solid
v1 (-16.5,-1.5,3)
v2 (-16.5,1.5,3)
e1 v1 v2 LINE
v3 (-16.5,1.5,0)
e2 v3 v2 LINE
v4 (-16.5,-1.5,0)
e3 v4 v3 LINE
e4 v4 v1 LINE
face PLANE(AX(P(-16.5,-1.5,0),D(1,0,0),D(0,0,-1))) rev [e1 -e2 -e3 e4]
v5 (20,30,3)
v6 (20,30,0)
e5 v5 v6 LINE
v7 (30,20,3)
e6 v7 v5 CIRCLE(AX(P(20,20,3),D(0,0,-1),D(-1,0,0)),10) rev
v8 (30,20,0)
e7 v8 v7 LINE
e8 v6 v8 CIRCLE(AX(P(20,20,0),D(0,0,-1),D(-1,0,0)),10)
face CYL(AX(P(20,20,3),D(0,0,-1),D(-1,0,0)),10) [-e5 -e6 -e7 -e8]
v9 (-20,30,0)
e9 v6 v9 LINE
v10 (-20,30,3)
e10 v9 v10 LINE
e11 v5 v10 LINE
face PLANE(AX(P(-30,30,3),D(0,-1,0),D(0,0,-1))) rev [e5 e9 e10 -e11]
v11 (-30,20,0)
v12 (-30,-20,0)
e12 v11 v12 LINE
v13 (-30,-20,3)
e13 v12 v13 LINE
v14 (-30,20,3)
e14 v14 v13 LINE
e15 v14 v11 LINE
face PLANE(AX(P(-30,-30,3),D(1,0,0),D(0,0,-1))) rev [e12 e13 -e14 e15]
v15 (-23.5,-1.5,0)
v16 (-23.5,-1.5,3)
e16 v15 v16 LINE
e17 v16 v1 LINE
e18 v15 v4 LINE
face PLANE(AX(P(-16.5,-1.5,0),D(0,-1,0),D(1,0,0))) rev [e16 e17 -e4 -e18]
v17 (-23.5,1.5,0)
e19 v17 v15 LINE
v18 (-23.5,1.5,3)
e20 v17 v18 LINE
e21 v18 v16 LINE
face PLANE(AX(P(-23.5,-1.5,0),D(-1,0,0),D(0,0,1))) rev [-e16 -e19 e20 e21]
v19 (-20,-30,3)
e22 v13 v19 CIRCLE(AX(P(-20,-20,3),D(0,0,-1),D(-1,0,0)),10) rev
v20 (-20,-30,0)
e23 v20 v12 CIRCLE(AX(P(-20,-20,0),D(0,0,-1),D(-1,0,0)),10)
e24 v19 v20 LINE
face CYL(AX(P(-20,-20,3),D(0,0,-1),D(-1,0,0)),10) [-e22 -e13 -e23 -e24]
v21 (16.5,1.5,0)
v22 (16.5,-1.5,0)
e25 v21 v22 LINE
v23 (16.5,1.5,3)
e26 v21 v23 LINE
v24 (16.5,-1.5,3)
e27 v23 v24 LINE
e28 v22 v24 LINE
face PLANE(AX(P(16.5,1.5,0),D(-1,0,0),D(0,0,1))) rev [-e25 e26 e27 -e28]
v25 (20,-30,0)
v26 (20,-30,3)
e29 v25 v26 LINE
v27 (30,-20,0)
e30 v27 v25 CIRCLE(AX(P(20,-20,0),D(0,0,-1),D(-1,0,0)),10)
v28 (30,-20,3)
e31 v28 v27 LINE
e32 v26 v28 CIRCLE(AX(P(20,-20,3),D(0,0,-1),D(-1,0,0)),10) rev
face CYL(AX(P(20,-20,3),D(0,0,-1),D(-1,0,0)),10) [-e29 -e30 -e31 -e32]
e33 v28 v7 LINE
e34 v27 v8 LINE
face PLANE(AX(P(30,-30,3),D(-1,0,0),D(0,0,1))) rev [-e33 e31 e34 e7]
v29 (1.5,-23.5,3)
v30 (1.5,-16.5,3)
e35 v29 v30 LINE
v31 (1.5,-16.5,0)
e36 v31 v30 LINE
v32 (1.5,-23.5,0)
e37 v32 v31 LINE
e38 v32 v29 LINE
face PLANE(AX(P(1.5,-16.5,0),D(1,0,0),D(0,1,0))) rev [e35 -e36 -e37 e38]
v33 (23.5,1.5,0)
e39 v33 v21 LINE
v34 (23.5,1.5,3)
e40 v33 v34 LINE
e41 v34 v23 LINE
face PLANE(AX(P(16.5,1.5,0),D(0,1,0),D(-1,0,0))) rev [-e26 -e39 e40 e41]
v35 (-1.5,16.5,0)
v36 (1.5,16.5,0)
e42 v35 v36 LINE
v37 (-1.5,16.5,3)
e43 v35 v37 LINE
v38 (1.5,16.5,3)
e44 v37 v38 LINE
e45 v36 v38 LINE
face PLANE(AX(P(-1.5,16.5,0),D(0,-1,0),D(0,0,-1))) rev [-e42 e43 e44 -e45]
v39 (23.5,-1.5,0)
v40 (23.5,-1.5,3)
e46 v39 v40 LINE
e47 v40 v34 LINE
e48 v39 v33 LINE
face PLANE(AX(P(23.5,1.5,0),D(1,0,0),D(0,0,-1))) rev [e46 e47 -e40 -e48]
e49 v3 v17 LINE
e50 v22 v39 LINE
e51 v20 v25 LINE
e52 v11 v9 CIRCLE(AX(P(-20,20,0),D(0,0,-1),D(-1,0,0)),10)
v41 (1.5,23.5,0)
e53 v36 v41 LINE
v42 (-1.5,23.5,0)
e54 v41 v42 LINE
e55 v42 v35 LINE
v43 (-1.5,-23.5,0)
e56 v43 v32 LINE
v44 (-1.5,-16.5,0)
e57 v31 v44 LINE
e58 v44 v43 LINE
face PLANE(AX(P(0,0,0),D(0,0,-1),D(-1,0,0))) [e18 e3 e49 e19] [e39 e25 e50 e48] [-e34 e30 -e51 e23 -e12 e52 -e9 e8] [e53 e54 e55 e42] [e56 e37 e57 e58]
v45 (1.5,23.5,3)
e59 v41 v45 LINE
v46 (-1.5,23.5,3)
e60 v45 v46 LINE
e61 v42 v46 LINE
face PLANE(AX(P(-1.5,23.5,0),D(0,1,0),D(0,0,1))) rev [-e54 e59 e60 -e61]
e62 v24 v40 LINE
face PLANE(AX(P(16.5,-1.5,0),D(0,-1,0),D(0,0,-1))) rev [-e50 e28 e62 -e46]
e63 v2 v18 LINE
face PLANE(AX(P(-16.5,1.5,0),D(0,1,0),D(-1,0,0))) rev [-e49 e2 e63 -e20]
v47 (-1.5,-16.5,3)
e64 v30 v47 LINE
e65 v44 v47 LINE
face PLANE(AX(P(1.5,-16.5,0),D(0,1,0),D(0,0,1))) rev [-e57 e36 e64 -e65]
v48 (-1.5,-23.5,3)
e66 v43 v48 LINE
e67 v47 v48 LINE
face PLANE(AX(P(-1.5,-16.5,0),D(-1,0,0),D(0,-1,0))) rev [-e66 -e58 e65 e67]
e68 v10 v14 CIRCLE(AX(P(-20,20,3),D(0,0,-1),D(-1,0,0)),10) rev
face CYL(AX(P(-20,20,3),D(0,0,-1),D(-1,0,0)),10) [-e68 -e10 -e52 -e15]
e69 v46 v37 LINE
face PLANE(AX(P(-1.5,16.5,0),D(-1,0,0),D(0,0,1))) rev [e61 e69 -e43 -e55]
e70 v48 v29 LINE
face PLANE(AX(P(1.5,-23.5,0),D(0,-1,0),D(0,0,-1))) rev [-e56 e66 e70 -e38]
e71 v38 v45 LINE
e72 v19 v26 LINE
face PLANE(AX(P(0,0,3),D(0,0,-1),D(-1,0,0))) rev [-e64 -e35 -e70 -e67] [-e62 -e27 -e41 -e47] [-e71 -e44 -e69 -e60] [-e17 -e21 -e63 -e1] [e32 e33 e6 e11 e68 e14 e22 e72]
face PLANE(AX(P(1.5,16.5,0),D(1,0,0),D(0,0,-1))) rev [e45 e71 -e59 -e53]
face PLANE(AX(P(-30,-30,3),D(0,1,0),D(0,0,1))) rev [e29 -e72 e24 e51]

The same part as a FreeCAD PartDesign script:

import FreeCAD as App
import Part
import Sketcher
from FreeCAD import Vector


def edges_at(feature, points):
    """Names of the edges that pass closest to the given points."""
    edges = feature.Shape.Edges
    near = lambda p: min(range(len(edges)), key=lambda i: edges[i].distToShape(Part.Vertex(*p))[0])
    return sorted({f"Edge{near(p) + 1}" for p in points})

doc = App.newDocument("Part")
body = doc.addObject("PartDesign::Body", "Body")

# Sketch on XY plane
sketch1 = body.newObject("Sketcher::SketchObject", "Sketch")
sketch1.AttachmentSupport = (doc.getObject("XY_Plane"), [""])
sketch1.MapMode = "FlatFace"
sketch1.addGeometry(Part.LineSegment(Vector(-30, 30, 0), Vector(-30, -30, 0)), False)
sketch1.addGeometry(Part.LineSegment(Vector(-30, -30, 0), Vector(30, -30, 0)), False)
sketch1.addGeometry(Part.LineSegment(Vector(30, -30, 0), Vector(30, 30, 0)), False)
sketch1.addGeometry(Part.LineSegment(Vector(30, 30, 0), Vector(-30, 30, 0)), False)
sketch1.addConstraint(Sketcher.Constraint("Coincident", 0, 2, 1, 1))
sketch1.addConstraint(Sketcher.Constraint("Coincident", 1, 2, 2, 1))
sketch1.addConstraint(Sketcher.Constraint("Coincident", 2, 2, 3, 1))
sketch1.addConstraint(Sketcher.Constraint("Coincident", 3, 2, 0, 1))
sketch1.addConstraint(Sketcher.Constraint("Vertical", 0))
sketch1.addConstraint(Sketcher.Constraint("Horizontal", 1))
sketch1.addConstraint(Sketcher.Constraint("Vertical", 2))
sketch1.addConstraint(Sketcher.Constraint("Horizontal", 3))
sketch1.addConstraint(Sketcher.Constraint("Symmetric", 0, 2, 2, 2, -1, 1))
sketch1.addConstraint(Sketcher.Constraint("Equal", 3, 0))
sketch1.addConstraint(Sketcher.Constraint("DistanceX", 1, 1, 1, 2, 60.0))
pad1 = body.newObject("PartDesign::Pad", "Pad")
pad1.Profile = sketch1
pad1.Length = 3

# Sketch on XY plane
sketch2 = body.newObject("Sketcher::SketchObject", "Sketch001")
sketch2.AttachmentSupport = (doc.getObject("XY_Plane"), [""])
sketch2.MapMode = "FlatFace"
sketch2.AttachmentOffset = App.Placement(Vector(0, 0, 3), App.Rotation())
sketch2.addGeometry(Part.LineSegment(Vector(16.5, 1.5, 0), Vector(16.5, -1.5, 0)), False)
sketch2.addGeometry(Part.LineSegment(Vector(16.5, -1.5, 0), Vector(23.5, -1.5, 0)), False)
sketch2.addGeometry(Part.LineSegment(Vector(23.5, -1.5, 0), Vector(23.5, 1.5, 0)), False)
sketch2.addGeometry(Part.LineSegment(Vector(23.5, 1.5, 0), Vector(16.5, 1.5, 0)), False)
sketch2.addGeometry(Part.LineSegment(Vector(-1.5, -16.5, 0), Vector(-1.5, -23.5, 0)), False)
sketch2.addGeometry(Part.LineSegment(Vector(-1.5, -23.5, 0), Vector(1.5, -23.5, 0)), False)
sketch2.addGeometry(Part.LineSegment(Vector(1.5, -23.5, 0), Vector(1.5, -16.5, 0)), False)
sketch2.addGeometry(Part.LineSegment(Vector(1.5, -16.5, 0), Vector(-1.5, -16.5, 0)), False)
sketch2.addGeometry(Part.LineSegment(Vector(-23.5, 1.5, 0), Vector(-23.5, -1.5, 0)), False)
sketch2.addGeometry(Part.LineSegment(Vector(-23.5, -1.5, 0), Vector(-16.5, -1.5, 0)), False)
sketch2.addGeometry(Part.LineSegment(Vector(-16.5, -1.5, 0), Vector(-16.5, 1.5, 0)), False)
sketch2.addGeometry(Part.LineSegment(Vector(-16.5, 1.5, 0), Vector(-23.5, 1.5, 0)), False)
sketch2.addGeometry(Part.LineSegment(Vector(-1.5, 23.5, 0), Vector(-1.5, 16.5, 0)), False)
sketch2.addGeometry(Part.LineSegment(Vector(-1.5, 16.5, 0), Vector(1.5, 16.5, 0)), False)
sketch2.addGeometry(Part.LineSegment(Vector(1.5, 16.5, 0), Vector(1.5, 23.5, 0)), False)
sketch2.addGeometry(Part.LineSegment(Vector(1.5, 23.5, 0), Vector(-1.5, 23.5, 0)), False)
sketch2.addConstraint(Sketcher.Constraint("Coincident", 0, 2, 1, 1))
sketch2.addConstraint(Sketcher.Constraint("Coincident", 1, 2, 2, 1))
sketch2.addConstraint(Sketcher.Constraint("Coincident", 2, 2, 3, 1))
sketch2.addConstraint(Sketcher.Constraint("Coincident", 3, 2, 0, 1))
sketch2.addConstraint(Sketcher.Constraint("Coincident", 4, 2, 5, 1))
sketch2.addConstraint(Sketcher.Constraint("Coincident", 5, 2, 6, 1))
sketch2.addConstraint(Sketcher.Constraint("Coincident", 6, 2, 7, 1))
sketch2.addConstraint(Sketcher.Constraint("Coincident", 7, 2, 4, 1))
sketch2.addConstraint(Sketcher.Constraint("Coincident", 8, 2, 9, 1))
sketch2.addConstraint(Sketcher.Constraint("Coincident", 9, 2, 10, 1))
sketch2.addConstraint(Sketcher.Constraint("Coincident", 10, 2, 11, 1))
sketch2.addConstraint(Sketcher.Constraint("Coincident", 11, 2, 8, 1))
sketch2.addConstraint(Sketcher.Constraint("Coincident", 12, 2, 13, 1))
sketch2.addConstraint(Sketcher.Constraint("Coincident", 13, 2, 14, 1))
sketch2.addConstraint(Sketcher.Constraint("Coincident", 14, 2, 15, 1))
sketch2.addConstraint(Sketcher.Constraint("Coincident", 15, 2, 12, 1))
sketch2.addConstraint(Sketcher.Constraint("Vertical", 0))
sketch2.addConstraint(Sketcher.Constraint("Horizontal", 1))
sketch2.addConstraint(Sketcher.Constraint("Vertical", 2))
sketch2.addConstraint(Sketcher.Constraint("Horizontal", 3))
sketch2.addConstraint(Sketcher.Constraint("Vertical", 4))
sketch2.addConstraint(Sketcher.Constraint("Horizontal", 5))
sketch2.addConstraint(Sketcher.Constraint("Vertical", 6))
sketch2.addConstraint(Sketcher.Constraint("Horizontal", 7))
sketch2.addConstraint(Sketcher.Constraint("Vertical", 8))
sketch2.addConstraint(Sketcher.Constraint("Horizontal", 9))
sketch2.addConstraint(Sketcher.Constraint("Vertical", 10))
sketch2.addConstraint(Sketcher.Constraint("Horizontal", 11))
sketch2.addConstraint(Sketcher.Constraint("Vertical", 12))
sketch2.addConstraint(Sketcher.Constraint("Horizontal", 13))
sketch2.addConstraint(Sketcher.Constraint("Vertical", 14))
sketch2.addConstraint(Sketcher.Constraint("Horizontal", 15))
sketch2.addConstraint(Sketcher.Constraint("Symmetric", 2, 2, 8, 2, -1, 1))
sketch2.addConstraint(Sketcher.Constraint("Symmetric", 0, 2, 10, 2, -1, 1))
sketch2.addConstraint(Sketcher.Constraint("Symmetric", 6, 2, 12, 2, -1, 1))
sketch2.addConstraint(Sketcher.Constraint("Symmetric", 4, 2, 14, 2, -1, 1))
sketch2.addConstraint(Sketcher.Constraint("Horizontal", 1, 2, 8, 2))
sketch2.addConstraint(Sketcher.Constraint("Vertical", 7, 2, 12, 2))
sketch2.addConstraint(Sketcher.Constraint("Equal", 15, 0))
sketch2.addConstraint(Sketcher.Constraint("Equal", 11, 4))
sketch2.addConstraint(Sketcher.Constraint("DistanceX", 1, 1, 1, 2, 7.0))
sketch2.addConstraint(Sketcher.Constraint("DistanceX", 5, 1, 5, 2, 3.0))
sketch2.addConstraint(Sketcher.Constraint("DistanceX", 4, 2, 0, 2, 18.0))
sketch2.addConstraint(Sketcher.Constraint("DistanceY", 4, 2, 0, 2, 22.0))
pocket1 = body.newObject("PartDesign::Pocket", "Pocket")
pocket1.Profile = sketch2
pocket1.Length = 3
doc.recompute()

fillet = body.newObject("PartDesign::Fillet", "Fillet")
fillet.Base = (pocket1, edges_at(pocket1, [
    (30, -30, 1.5),
    (-30, -30, 1.5),
    (-30, 30, 1.5),
    (30, 30, 1.5),
]))
fillet.Radius = 10

doc.recompute()
